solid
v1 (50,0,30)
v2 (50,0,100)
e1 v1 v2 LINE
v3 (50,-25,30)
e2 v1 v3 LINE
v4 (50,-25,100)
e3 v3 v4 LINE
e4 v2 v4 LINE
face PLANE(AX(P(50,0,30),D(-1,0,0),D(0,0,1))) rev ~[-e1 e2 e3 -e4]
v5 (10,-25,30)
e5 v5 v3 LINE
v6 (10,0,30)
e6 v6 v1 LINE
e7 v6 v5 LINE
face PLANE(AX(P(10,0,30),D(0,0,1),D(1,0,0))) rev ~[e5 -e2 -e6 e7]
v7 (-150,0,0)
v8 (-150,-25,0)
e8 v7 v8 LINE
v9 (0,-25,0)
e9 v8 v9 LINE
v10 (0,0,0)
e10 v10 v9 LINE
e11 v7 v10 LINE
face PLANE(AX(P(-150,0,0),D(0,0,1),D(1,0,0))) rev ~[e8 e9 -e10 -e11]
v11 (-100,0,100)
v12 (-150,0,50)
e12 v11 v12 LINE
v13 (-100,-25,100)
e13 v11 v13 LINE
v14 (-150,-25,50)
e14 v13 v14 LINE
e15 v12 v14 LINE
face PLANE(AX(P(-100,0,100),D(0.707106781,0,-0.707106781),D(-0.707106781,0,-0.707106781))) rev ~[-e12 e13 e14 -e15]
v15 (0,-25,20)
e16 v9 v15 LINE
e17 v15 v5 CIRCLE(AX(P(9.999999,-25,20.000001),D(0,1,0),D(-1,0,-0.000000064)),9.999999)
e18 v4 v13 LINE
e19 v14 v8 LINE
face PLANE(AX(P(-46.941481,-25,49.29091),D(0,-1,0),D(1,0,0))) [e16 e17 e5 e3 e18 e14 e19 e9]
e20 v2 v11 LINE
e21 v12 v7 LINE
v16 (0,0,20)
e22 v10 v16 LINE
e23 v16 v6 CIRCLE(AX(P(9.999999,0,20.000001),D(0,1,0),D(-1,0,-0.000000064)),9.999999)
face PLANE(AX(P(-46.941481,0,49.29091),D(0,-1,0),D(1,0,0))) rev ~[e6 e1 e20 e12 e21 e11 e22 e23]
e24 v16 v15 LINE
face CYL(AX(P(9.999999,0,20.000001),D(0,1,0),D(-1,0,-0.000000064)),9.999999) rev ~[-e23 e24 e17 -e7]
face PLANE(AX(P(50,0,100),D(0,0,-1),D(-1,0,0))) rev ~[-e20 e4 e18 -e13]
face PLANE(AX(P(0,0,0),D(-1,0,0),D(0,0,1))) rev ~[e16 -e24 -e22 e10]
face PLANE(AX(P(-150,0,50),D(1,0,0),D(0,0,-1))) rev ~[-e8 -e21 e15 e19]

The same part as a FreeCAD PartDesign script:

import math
import FreeCAD as App
import Part
import Sketcher

doc = App.newDocument("Part")
body = doc.addObject("PartDesign::Body", "Body")

# Sketch on XZ plane
sketch1 = body.newObject("Sketcher::SketchObject", "Sketch")
sketch1.AttachmentSupport = (doc.getObject("XZ_Plane"), [""])
sketch1.MapMode = "FlatFace"
sketch1.addGeometry(Part.LineSegment(App.Vector(-150, 50, 0), App.Vector(-150, 0, 0)), False)
sketch1.addGeometry(Part.LineSegment(App.Vector(-150, 0, 0), App.Vector(0, 0, 0)), False)
sketch1.addGeometry(Part.LineSegment(App.Vector(0, 0, 0), App.Vector(0, 20, 0)), False)
sketch1.addGeometry(Part.ArcOfCircle(Part.Circle(App.Vector(10, 20, 0), App.Vector(0, 0, 1), 10), math.radians(90), math.radians(180)), False)
sketch1.addGeometry(Part.LineSegment(App.Vector(10, 30, 0), App.Vector(50, 30, 0)), False)
sketch1.addGeometry(Part.LineSegment(App.Vector(50, 30, 0), App.Vector(50, 100, 0)), False)
sketch1.addGeometry(Part.LineSegment(App.Vector(50, 100, 0), App.Vector(-100, 100, 0)), False)
sketch1.addGeometry(Part.LineSegment(App.Vector(-100, 100, 0), App.Vector(-150, 50, 0)), False)
sketch1.addConstraint(Sketcher.Constraint("Coincident", 0, 2, 1, 1))
sketch1.addConstraint(Sketcher.Constraint("Coincident", 1, 2, 2, 1))
sketch1.addConstraint(Sketcher.Constraint("Tangent", 2, 2, 3, 2))
sketch1.addConstraint(Sketcher.Constraint("Tangent", 3, 1, 4, 1))
sketch1.addConstraint(Sketcher.Constraint("Coincident", 4, 2, 5, 1))
sketch1.addConstraint(Sketcher.Constraint("Coincident", 5, 2, 6, 1))
sketch1.addConstraint(Sketcher.Constraint("Coincident", 6, 2, 7, 1))
sketch1.addConstraint(Sketcher.Constraint("Coincident", 7, 2, 0, 1))
sketch1.addConstraint(Sketcher.Constraint("Vertical", 0))
sketch1.addConstraint(Sketcher.Constraint("Horizontal", 1))
sketch1.addConstraint(Sketcher.Constraint("Vertical", 2))
sketch1.addConstraint(Sketcher.Constraint("Horizontal", 4))
sketch1.addConstraint(Sketcher.Constraint("Vertical", 5))
sketch1.addConstraint(Sketcher.Constraint("Horizontal", 6))
sketch1.addConstraint(Sketcher.Constraint("Coincident", 1, 2, -1, 1))
sketch1.addConstraint(Sketcher.Constraint("Equal", 1, 6))
sketch1.addConstraint(Sketcher.Constraint("Radius", 3, 9.999999))
sketch1.addConstraint(Sketcher.Constraint("DistanceX", 1, 1, 1, 2, 150.0))
sketch1.addConstraint(Sketcher.Constraint("DistanceX", 4, 1, 4, 2, 40.0))
sketch1.addConstraint(Sketcher.Constraint("DistanceY", 0, 2, 0, 1, 50.0))
sketch1.addConstraint(Sketcher.Constraint("DistanceY", 2, 1, 2, 2, 20.0))
sketch1.addConstraint(Sketcher.Constraint("DistanceY", 5, 1, 5, 2, 70.0))
pad1 = body.newObject("PartDesign::Pad", "Pad")
pad1.Profile = sketch1
pad1.Length = 25

# Sketch on XZ plane
sketch2 = body.newObject("Sketcher::SketchObject", "Sketch001")
sketch2.AttachmentSupport = (doc.getObject("XZ_Plane"), [""])
sketch2.MapMode = "FlatFace"
sketch2.addGeometry(Part.LineSegment(App.Vector(-150, 50, 0), App.Vector(-150, 0, 0)), False)
sketch2.addGeometry(Part.LineSegment(App.Vector(-150, 0, 0), App.Vector(0, 0, 0)), False)
sketch2.addGeometry(Part.LineSegment(App.Vector(0, 0, 0), App.Vector(0, 20, 0)), False)
sketch2.addGeometry(Part.ArcOfCircle(Part.Circle(App.Vector(10, 20, 0), App.Vector(0, 0, 1), 10), math.radians(90), math.radians(180)), False)
sketch2.addGeometry(Part.LineSegment(App.Vector(10, 30, 0), App.Vector(50, 30, 0)), False)
sketch2.addGeometry(Part.LineSegment(App.Vector(50, 30, 0), App.Vector(50, 100, 0)), False)
sketch2.addGeometry(Part.LineSegment(App.Vector(50, 100, 0), App.Vector(-100, 100, 0)), False)
sketch2.addGeometry(Part.LineSegment(App.Vector(-100, 100, 0), App.Vector(-150, 50, 0)), False)
sketch2.addConstraint(Sketcher.Constraint("Coincident", 0, 2, 1, 1))
sketch2.addConstraint(Sketcher.Constraint("Coincident", 1, 2, 2, 1))
sketch2.addConstraint(Sketcher.Constraint("Tangent", 2, 2, 3, 2))
sketch2.addConstraint(Sketcher.Constraint("Tangent", 3, 1, 4, 1))
sketch2.addConstraint(Sketcher.Constraint("Coincident", 4, 2, 5, 1))
sketch2.addConstraint(Sketcher.Constraint("Coincident", 5, 2, 6, 1))
sketch2.addConstraint(Sketcher.Constraint("Coincident", 6, 2, 7, 1))
sketch2.addConstraint(Sketcher.Constraint("Coincident", 7, 2, 0, 1))
sketch2.addConstraint(Sketcher.Constraint("Vertical", 0))
sketch2.addConstraint(Sketcher.Constraint("Horizontal", 1))
sketch2.addConstraint(Sketcher.Constraint("Vertical", 2))
sketch2.addConstraint(Sketcher.Constraint("Horizontal", 4))
sketch2.addConstraint(Sketcher.Constraint("Vertical", 5))
sketch2.addConstraint(Sketcher.Constraint("Horizontal", 6))
sketch2.addConstraint(Sketcher.Constraint("Coincident", 1, 2, -1, 1))
sketch2.addConstraint(Sketcher.Constraint("Equal", 1, 6))
sketch2.addConstraint(Sketcher.Constraint("Radius", 3, 9.999999))
sketch2.addConstraint(Sketcher.Constraint("DistanceX", 1, 1, 1, 2, 150.0))
sketch2.addConstraint(Sketcher.Constraint("DistanceX", 4, 1, 4, 2, 40.0))
sketch2.addConstraint(Sketcher.Constraint("DistanceY", 0, 2, 0, 1, 50.0))
sketch2.addConstraint(Sketcher.Constraint("DistanceY", 2, 1, 2, 2, 20.0))
sketch2.addConstraint(Sketcher.Constraint("DistanceY", 5, 1, 5, 2, 70.0))
pad2 = body.newObject("PartDesign::Pad", "Pad001")
pad2.Profile = sketch2
pad2.Length = 25

doc.recompute()
